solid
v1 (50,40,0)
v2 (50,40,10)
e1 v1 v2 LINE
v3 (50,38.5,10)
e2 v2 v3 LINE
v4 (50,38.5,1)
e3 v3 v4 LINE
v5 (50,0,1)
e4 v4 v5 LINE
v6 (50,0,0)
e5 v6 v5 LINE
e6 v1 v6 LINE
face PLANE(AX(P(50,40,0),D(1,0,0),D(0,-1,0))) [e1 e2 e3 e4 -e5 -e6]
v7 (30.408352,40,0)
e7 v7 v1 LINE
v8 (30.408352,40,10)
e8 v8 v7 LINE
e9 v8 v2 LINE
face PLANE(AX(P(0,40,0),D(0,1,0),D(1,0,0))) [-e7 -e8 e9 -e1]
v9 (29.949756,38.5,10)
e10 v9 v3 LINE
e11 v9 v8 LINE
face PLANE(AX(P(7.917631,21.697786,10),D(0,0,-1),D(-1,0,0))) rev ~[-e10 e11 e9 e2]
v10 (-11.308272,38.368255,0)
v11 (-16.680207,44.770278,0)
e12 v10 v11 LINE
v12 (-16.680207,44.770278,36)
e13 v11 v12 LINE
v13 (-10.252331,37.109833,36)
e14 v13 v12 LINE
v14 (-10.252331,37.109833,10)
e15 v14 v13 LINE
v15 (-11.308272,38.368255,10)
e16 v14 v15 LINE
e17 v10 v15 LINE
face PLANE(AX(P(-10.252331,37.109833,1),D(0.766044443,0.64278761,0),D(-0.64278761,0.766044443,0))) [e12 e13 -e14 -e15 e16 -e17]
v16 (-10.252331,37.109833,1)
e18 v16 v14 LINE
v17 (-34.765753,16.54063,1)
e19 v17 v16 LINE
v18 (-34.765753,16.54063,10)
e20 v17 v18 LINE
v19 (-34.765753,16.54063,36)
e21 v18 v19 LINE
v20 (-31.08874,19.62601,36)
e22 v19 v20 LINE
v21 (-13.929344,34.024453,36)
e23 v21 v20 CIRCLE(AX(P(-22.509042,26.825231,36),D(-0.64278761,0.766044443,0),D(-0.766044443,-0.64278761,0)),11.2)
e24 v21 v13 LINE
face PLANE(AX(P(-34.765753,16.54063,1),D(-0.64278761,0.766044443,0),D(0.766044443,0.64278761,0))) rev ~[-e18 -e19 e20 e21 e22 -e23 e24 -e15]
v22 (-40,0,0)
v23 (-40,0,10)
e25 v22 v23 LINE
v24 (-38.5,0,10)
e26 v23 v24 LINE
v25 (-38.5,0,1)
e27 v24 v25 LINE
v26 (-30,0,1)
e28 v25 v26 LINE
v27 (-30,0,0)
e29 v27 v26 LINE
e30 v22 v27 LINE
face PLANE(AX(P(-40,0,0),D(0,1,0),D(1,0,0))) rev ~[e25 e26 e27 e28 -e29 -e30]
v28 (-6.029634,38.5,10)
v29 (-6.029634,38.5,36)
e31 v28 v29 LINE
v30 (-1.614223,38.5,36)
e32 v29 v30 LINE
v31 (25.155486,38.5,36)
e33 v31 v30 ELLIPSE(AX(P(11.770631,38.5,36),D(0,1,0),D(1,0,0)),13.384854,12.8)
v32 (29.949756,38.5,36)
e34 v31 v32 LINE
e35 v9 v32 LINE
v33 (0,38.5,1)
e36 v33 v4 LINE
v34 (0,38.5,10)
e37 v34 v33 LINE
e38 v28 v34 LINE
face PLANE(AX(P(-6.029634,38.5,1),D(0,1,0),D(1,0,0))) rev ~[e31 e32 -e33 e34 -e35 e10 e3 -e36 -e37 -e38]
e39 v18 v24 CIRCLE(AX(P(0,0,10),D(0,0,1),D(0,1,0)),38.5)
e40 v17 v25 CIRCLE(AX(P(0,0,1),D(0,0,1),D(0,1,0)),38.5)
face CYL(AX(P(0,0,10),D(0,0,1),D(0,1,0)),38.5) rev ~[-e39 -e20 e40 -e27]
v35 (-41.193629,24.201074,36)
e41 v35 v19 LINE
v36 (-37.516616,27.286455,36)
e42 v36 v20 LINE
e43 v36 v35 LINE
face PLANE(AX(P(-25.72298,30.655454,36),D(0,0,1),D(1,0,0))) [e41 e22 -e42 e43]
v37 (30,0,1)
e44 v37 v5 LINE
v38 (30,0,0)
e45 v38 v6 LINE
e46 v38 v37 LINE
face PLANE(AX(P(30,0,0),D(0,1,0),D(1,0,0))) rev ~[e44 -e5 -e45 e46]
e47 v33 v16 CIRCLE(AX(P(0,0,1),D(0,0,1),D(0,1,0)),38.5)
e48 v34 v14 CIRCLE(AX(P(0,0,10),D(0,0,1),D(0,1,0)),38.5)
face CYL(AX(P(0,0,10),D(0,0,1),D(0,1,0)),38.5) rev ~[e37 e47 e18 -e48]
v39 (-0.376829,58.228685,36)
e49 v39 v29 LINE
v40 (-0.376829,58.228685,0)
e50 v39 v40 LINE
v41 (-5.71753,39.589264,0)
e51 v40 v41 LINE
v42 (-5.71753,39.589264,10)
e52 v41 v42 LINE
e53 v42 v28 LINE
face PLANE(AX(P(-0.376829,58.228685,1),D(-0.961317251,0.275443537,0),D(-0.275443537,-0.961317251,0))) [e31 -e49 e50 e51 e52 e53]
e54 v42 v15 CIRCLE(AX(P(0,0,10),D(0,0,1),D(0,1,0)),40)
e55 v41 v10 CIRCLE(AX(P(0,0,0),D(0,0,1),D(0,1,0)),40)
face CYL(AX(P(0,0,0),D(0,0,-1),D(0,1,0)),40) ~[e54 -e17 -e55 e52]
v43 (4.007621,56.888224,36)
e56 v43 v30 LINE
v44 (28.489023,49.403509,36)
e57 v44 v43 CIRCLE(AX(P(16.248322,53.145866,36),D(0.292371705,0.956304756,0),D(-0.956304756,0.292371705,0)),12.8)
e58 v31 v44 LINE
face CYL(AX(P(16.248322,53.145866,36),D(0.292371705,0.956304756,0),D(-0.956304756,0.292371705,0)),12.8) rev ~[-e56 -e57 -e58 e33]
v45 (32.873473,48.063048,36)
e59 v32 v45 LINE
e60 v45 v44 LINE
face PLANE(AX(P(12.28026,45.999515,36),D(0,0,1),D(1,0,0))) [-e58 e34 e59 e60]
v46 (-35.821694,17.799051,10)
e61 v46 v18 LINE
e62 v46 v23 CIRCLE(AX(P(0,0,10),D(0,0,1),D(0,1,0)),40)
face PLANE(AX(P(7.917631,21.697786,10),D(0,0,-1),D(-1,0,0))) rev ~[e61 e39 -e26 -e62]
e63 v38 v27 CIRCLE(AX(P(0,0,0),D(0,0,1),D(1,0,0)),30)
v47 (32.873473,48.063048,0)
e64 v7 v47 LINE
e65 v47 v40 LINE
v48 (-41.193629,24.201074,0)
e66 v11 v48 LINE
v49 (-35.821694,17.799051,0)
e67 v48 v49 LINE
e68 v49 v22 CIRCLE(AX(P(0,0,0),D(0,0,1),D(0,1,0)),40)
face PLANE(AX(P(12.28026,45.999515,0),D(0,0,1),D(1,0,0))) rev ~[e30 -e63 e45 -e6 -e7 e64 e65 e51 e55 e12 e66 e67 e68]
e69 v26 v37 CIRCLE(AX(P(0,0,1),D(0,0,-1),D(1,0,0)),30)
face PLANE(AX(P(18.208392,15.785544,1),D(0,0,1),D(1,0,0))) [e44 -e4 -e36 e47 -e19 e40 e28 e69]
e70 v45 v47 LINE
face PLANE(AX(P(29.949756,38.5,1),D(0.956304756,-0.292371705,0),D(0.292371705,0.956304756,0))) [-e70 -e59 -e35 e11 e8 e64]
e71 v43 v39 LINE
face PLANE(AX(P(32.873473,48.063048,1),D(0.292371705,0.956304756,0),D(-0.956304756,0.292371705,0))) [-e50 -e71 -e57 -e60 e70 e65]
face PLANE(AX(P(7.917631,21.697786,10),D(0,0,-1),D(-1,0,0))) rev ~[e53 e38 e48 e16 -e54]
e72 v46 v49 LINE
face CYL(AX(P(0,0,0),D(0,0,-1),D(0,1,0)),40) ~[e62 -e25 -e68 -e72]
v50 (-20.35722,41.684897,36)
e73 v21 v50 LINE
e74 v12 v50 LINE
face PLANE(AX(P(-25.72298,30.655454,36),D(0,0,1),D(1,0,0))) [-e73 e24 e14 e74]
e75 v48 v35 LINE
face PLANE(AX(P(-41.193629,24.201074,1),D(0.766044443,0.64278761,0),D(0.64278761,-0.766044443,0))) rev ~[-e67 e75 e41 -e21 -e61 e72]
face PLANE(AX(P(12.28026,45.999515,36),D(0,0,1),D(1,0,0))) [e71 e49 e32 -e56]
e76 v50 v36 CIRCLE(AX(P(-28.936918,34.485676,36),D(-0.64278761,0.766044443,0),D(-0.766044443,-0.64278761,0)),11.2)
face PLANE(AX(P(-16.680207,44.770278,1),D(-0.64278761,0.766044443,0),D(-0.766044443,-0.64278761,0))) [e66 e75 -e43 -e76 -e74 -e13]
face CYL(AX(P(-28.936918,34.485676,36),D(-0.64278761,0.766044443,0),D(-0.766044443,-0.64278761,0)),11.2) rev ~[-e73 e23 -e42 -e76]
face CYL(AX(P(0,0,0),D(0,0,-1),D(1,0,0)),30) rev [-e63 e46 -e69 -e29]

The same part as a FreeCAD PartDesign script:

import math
import FreeCAD as App
import Part
import Sketcher

V = App.Vector
Q = App.Units.Quantity


def add_polygon(sketch, points):
    """Adds a closed chain of lines whose ends are joined by coincident constraints."""
    first, n = sketch.GeometryCount, len(points)
    for a, b in zip(points, points[1:] + points[:1]):
        sketch.addGeometry(Part.LineSegment(App.Vector(*a, 0), App.Vector(*b, 0)), False)
    for i in range(n):
        sketch.addConstraint(Sketcher.Constraint("Coincident", first + i, 2, first + (i + 1) % n, 1))

doc = App.newDocument("Part")
params = doc.addObject("Spreadsheet::Sheet", "Params")
for row, (alias, value) in enumerate([
    ("sketch1_radius", "30 mm"),
    ("sketch1_radius2", "40 mm"),
    ("sketch1_width", "20 mm"),
    ("pad1_length", "10 mm"),
    ("sketch2_radius", "38.5 mm"),
    ("sketch2_width", "65 mm"),
    ("sketch2_height", "45 mm"),
    ("pocket1_length", "9 mm"),
    ("sketch3_length", "10 mm"),
    ("sketch3_length2", "32 mm"),
    ("pad2_length", "35 mm"),
    ("pad2_length2", "1 mm"),
    ("sketch4_diameter", "25.6 mm"),
    ("sketch5_diameter", "22.4 mm"),
], start=1):
    params.set(f"A{row}", alias)
    params.set(f"B{row}", "=" + value)
    params.setAlias(f"B{row}", alias)

body = doc.addObject("PartDesign::Body", "Body")

# Sketch on XY plane
sketch1 = doc.addObject("Sketcher::SketchObject", "Sketch")
body.addObject(sketch1)
sketch1.AttachmentSupport = (doc.XY_Plane, [""])
sketch1.MapMode = "FlatFace"
sketch1.addGeometry(Part.ArcOfCircle(Part.Circle(V(0, 0, 0), V(0, 0, 1), 30), math.radians(0), math.radians(180)), False)
sketch1.addGeometry(Part.LineSegment(V(30, 0, 0), V(50, 0, 0)), False)
sketch1.addGeometry(Part.LineSegment(V(50, 0, 0), V(50, 40, 0)), False)
sketch1.addGeometry(Part.LineSegment(V(50, 40, 0), V(0, 40, 0)), False)
sketch1.addGeometry(Part.ArcOfCircle(Part.Circle(V(0, 0, 0), V(0, 0, 1), 40), math.radians(90), math.radians(180)), False)
sketch1.addGeometry(Part.LineSegment(V(-40, 0, 0), V(-30, 0, 0)), False)
sketch1.addConstraint(Sketcher.Constraint("Coincident", 0, 1, 1, 1))
sketch1.addConstraint(Sketcher.Constraint("Coincident", 1, 2, 2, 1))
sketch1.addConstraint(Sketcher.Constraint("Coincident", 2, 2, 3, 1))
sketch1.addConstraint(Sketcher.Constraint("Tangent", 3, 2, 4, 1))
sketch1.addConstraint(Sketcher.Constraint("Coincident", 4, 2, 5, 1))
sketch1.addConstraint(Sketcher.Constraint("Coincident", 5, 2, 0, 2))
sketch1.addConstraint(Sketcher.Constraint("Horizontal", 1))
sketch1.addConstraint(Sketcher.Constraint("Vertical", 2))
sketch1.addConstraint(Sketcher.Constraint("Horizontal", 3))
sketch1.addConstraint(Sketcher.Constraint("Horizontal", 5))
sketch1.addConstraint(Sketcher.Constraint("Coincident", 0, 3, -1, 1))
sketch1.addConstraint(Sketcher.Constraint("Coincident", 4, 3, -1, 1))
sketch1.addConstraint(Sketcher.Constraint("PointOnObject", 0, 1, -1))
sketch1.addConstraint(Sketcher.Constraint("PointOnObject", 4, 2, -1))
sketch1.addConstraint(Sketcher.Constraint("Radius", 0, Q("30 mm")))
sketch1.addConstraint(Sketcher.Constraint("Radius", 4, Q("40 mm")))
sketch1.addConstraint(Sketcher.Constraint("DistanceX", 1, 1, 1, 2, Q("20 mm")))
sketch1.setExpression("Constraints[14]", "Params.sketch1_radius")
sketch1.setExpression("Constraints[15]", "Params.sketch1_radius2")
sketch1.setExpression("Constraints[16]", "Params.sketch1_width")
pad1 = doc.addObject("PartDesign::Pad", "Pad")
body.addObject(pad1)
pad1.Profile = sketch1
pad1.setExpression("Length", "Params.pad1_length")

# Sketch on XY plane
sketch2 = doc.addObject("Sketcher::SketchObject", "Sketch001")
body.addObject(sketch2)
sketch2.AttachmentSupport = (doc.XY_Plane, [""])
sketch2.MapMode = "FlatFace"
sketch2.AttachmentOffset = App.Placement(V(0, 0, 10), App.Rotation())
sketch2.addGeometry(Part.ArcOfCircle(Part.Circle(V(0, 0, 0), V(0, 0, 1), 38.5), math.radians(90), math.radians(180)), False)
sketch2.addGeometry(Part.LineSegment(V(-38.5, 0, 0), V(65, -6.5, 0)), False)
sketch2.addGeometry(Part.LineSegment(V(65, -6.5, 0), V(65, 38.5, 0)), False)
sketch2.addGeometry(Part.LineSegment(V(65, 38.5, 0), V(0, 38.5, 0)), False)
sketch2.addConstraint(Sketcher.Constraint("Coincident", 0, 2, 1, 1))
sketch2.addConstraint(Sketcher.Constraint("Coincident", 1, 2, 2, 1))
sketch2.addConstraint(Sketcher.Constraint("Coincident", 2, 2, 3, 1))
sketch2.addConstraint(Sketcher.Constraint("Tangent", 3, 2, 0, 1))
sketch2.addConstraint(Sketcher.Constraint("Vertical", 2))
sketch2.addConstraint(Sketcher.Constraint("Horizontal", 3))
sketch2.addConstraint(Sketcher.Constraint("Coincident", 0, 3, -1, 1))
sketch2.addConstraint(Sketcher.Constraint("PointOnObject", 0, 2, -1))
sketch2.addConstraint(Sketcher.Constraint("Radius", 0, Q("38.5 mm")))
sketch2.addConstraint(Sketcher.Constraint("DistanceX", 3, 2, 3, 1, Q("65 mm")))
sketch2.addConstraint(Sketcher.Constraint("DistanceY", 2, 1, 2, 2, Q("45 mm")))
sketch2.setExpression("Constraints[8]", "Params.sketch2_radius")
sketch2.setExpression("Constraints[9]", "Params.sketch2_width")
sketch2.setExpression("Constraints[10]", "Params.sketch2_height")
pocket1 = doc.addObject("PartDesign::Pocket", "Pocket")
body.addObject(pocket1)
pocket1.Profile = sketch2
pocket1.setExpression("Length", "Params.pocket1_length")

# Sketch on XY plane
sketch3 = doc.addObject("Sketcher::SketchObject", "Sketch002")
body.addObject(sketch3)
sketch3.AttachmentSupport = (doc.XY_Plane, [""])
sketch3.MapMode = "FlatFace"
sketch3.AttachmentOffset = App.Placement(V(0, 0, 1), App.Rotation())
add_polygon(sketch3, [(-0.376829, 58.228685), (-6.029634, 38.5), (29.949756, 38.5), (32.873473, 48.063048)])  # lines 0-3
add_polygon(sketch3, [(-16.680207, 44.770278), (-41.193629, 24.201074), (-34.765753, 16.54063), (-10.252331, 37.109833)])  # lines 4-7
sketch3.addConstraint(Sketcher.Constraint("Horizontal", 1))
sketch3.addConstraint(Sketcher.Constraint("Perpendicular", 2, 3))
sketch3.addConstraint(Sketcher.Constraint("Perpendicular", 4, 5))
sketch3.addConstraint(Sketcher.Constraint("Perpendicular", 5, 6))
sketch3.addConstraint(Sketcher.Constraint("Perpendicular", 6, 7))
sketch3.addConstraint(Sketcher.Constraint("Equal", 2, 5))
sketch3.addConstraint(Sketcher.Constraint("Angle", 2, Q("73 deg")))
sketch3.addConstraint(Sketcher.Constraint("Angle", 4, Q("-140 deg")))
sketch3.addConstraint(Sketcher.Constraint("Distance", 2, Q("10 mm")))
sketch3.addConstraint(Sketcher.Constraint("Distance", 4, Q("32 mm")))
sketch3.addConstraint(Sketcher.Constraint("DistanceY", -1, 1, 0, 2, Q("38.5 mm")))
sketch3.addConstraint(Sketcher.Constraint("DistanceX", 1, 1, 1, 2, Q("35.97939 mm")))
sketch3.addConstraint(Sketcher.Constraint("DistanceX", 4, 2, 3, 2, Q("40.8168 mm")))
sketch3.addConstraint(Sketcher.Constraint("DistanceX", 3, 2, -1, 1, Q("0.376829 mm")))
sketch3.addConstraint(Sketcher.Constraint("DistanceY", -1, 1, 5, 2, Q("16.54063 mm")))
sketch3.addConstraint(Sketcher.Constraint("DistanceY", 4, 2, 3, 2, Q("34.027611 mm")))
sketch3.setExpression("Constraints[16]", "Params.sketch3_length")
sketch3.setExpression("Constraints[17]", "Params.sketch3_length2")
pad2 = doc.addObject("PartDesign::Pad", "Pad001")
body.addObject(pad2)
pad2.Profile = sketch3
pad2.Type = "TwoLengths"
pad2.setExpression("Length", "Params.pad2_length")
pad2.setExpression("Length2", "Params.pad2_length2")

# Sketch on an angled plane
sketch4 = doc.addObject("Sketcher::SketchObject", "Sketch003")
body.addObject(sketch4)
sketch4.Placement = App.Placement(V(16.248322, 53.145866, 0), App.Rotation(V(-0.956304756, 0.292371705, 0), V(0, 0, 1), V(0.292371705, 0.956304756, 0), "ZXY"))
sketch4.addGeometry(Part.Circle(V(0, 36, 0), V(0, 0, 1), 12.8), False)
sketch4.addConstraint(Sketcher.Constraint("PointOnObject", 0, 3, -2))
sketch4.addConstraint(Sketcher.Constraint("Diameter", 0, Q("25.6 mm")))
sketch4.addConstraint(Sketcher.Constraint("DistanceY", -1, 1, 0, 3, Q("36 mm")))
sketch4.setExpression("Constraints[1]", "Params.sketch4_diameter")
pocket2 = doc.addObject("PartDesign::Pocket", "Pocket001")
body.addObject(pocket2)
pocket2.Profile = sketch4
pocket2.Type = "ThroughAll"

# Sketch on an angled plane
sketch5 = doc.addObject("Sketcher::SketchObject", "Sketch004")
body.addObject(sketch5)
sketch5.Placement = App.Placement(V(-28.936918, 34.485676, 0), App.Rotation(V(-0.766044443, -0.64278761, 0), V(0, 0, 1), V(-0.64278761, 0.766044443, 0), "ZXY"))
sketch5.addGeometry(Part.Circle(V(0, 36, 0), V(0, 0, 1), 11.2), False)
sketch5.addConstraint(Sketcher.Constraint("PointOnObject", 0, 3, -2))
sketch5.addConstraint(Sketcher.Constraint("Diameter", 0, Q("22.4 mm")))
sketch5.addConstraint(Sketcher.Constraint("DistanceY", -1, 1, 0, 3, Q("36 mm")))
sketch5.setExpression("Constraints[1]", "Params.sketch5_diameter")
pocket3 = doc.addObject("PartDesign::Pocket", "Pocket002")
body.addObject(pocket3)
pocket3.Profile = sketch5
pocket3.Type = "ThroughAll"

doc.recompute()
